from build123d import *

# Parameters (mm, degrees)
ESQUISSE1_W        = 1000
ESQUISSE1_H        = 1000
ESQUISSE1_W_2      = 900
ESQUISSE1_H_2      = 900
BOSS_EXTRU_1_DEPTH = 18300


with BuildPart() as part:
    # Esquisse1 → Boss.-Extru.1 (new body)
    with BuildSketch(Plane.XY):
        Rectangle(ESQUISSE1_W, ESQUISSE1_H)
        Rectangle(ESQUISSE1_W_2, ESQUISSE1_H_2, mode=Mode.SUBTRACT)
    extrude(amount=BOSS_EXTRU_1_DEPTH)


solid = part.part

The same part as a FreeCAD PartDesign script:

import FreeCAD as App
import Part
import Sketcher
from FreeCAD import Vector
Q = App.Units.Quantity


def add_polygon(sketch, points):
    """Adds a closed chain of lines whose ends are joined by coincident constraints."""
    first, n = sketch.GeometryCount, len(points)
    for a, b in zip(points, points[1:] + points[:1]):
        sketch.addGeometry(Part.LineSegment(App.Vector(*a, 0), App.Vector(*b, 0)), False)
    for i in range(n):
        sketch.addConstraint(Sketcher.Constraint("Coincident", first + i, 2, first + (i + 1) % n, 1))

doc = App.newDocument("Part")
body = doc.addObject("PartDesign::Body", "Body")

sketch1 = doc.addObject("Sketcher::SketchObject", "Sketch")
body.addObject(sketch1)
sketch1.AttachmentSupport = (doc.XY_Plane, [""])
sketch1.MapMode = "FlatFace"
add_polygon(sketch1, [(-500, 500), (-500, -500), (500, -500), (500, 500)])
add_polygon(sketch1, [(450, -450), (-450, -450), (-450, 450), (450, 450)])
sketch1.addConstraint(Sketcher.Constraint("Vertical", 0))
sketch1.addConstraint(Sketcher.Constraint("Horizontal", 1))
sketch1.addConstraint(Sketcher.Constraint("Vertical", 2))
sketch1.addConstraint(Sketcher.Constraint("Horizontal", 3))
sketch1.addConstraint(Sketcher.Constraint("Horizontal", 4))
sketch1.addConstraint(Sketcher.Constraint("Vertical", 5))
sketch1.addConstraint(Sketcher.Constraint("Horizontal", 6))
sketch1.addConstraint(Sketcher.Constraint("Vertical", 7))
sketch1.addConstraint(Sketcher.Constraint("Symmetric", 0, 2, 2, 2, -1, 1))
sketch1.addConstraint(Sketcher.Constraint("Symmetric", 4, 2, 6, 2, -1, 1))
sketch1.addConstraint(Sketcher.Constraint("Equal", 3, 0))
sketch1.addConstraint(Sketcher.Constraint("Equal", 6, 5))
sketch1.addConstraint(Sketcher.Constraint("DistanceX", 1, 1, 1, 2, Q("1000 mm")))
sketch1.addConstraint(Sketcher.Constraint("DistanceX", 4, 2, 4, 1, Q("900 mm")))
pad1 = doc.addObject("PartDesign::Pad", "Pad")
body.addObject(pad1)
pad1.Profile = sketch1
pad1.Length = 18300

doc.recompute()
